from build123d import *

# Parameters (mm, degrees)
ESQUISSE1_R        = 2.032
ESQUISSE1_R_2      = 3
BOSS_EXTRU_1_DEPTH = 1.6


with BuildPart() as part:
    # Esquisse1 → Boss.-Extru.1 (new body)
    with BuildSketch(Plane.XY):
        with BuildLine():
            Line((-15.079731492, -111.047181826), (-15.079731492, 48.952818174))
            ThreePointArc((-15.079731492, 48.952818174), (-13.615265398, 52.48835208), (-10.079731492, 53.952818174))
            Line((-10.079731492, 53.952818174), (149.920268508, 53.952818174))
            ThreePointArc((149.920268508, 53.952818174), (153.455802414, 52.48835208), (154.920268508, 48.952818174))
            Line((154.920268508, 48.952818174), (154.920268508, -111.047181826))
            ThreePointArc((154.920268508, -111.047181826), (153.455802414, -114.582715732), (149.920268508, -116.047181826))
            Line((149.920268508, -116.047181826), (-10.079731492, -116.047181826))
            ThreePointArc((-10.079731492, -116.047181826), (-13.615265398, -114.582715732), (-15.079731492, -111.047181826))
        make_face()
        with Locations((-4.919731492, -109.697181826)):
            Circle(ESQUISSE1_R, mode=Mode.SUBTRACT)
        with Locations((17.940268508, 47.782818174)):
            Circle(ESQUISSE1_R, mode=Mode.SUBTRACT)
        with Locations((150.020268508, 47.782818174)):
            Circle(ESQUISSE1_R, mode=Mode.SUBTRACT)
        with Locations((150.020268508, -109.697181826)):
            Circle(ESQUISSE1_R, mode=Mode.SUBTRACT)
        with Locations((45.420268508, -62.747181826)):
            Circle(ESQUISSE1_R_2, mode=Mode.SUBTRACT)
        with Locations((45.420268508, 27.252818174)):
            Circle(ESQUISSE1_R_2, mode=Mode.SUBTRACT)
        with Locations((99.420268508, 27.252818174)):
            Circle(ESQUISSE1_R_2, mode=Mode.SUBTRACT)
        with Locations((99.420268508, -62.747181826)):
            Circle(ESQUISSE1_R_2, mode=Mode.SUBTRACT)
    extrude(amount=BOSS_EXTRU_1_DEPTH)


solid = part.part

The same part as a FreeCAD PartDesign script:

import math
import FreeCAD as App
import Part
import Sketcher
from FreeCAD import Vector
Q = App.Units.Quantity

doc = App.newDocument("Part")
body = doc.addObject("PartDesign::Body", "Body")

# Sketch on XY plane
sketch1 = body.newObject("Sketcher::SketchObject", "Sketch")
sketch1.AttachmentSupport = (doc.getObject("XY_Plane"), [""])
sketch1.MapMode = "FlatFace"
sketch1.addGeometry([
    Part.LineSegment(Vector(-15.1, 49, 0), Vector(-15.1, -111, 0)),  # 0
    Part.ArcOfCircle(Part.Circle(Vector(-10.1, -111, 0), Vector(0, 0, 1), 5), math.radians(180), math.radians(270)),  # 1
    Part.LineSegment(Vector(-10.1, -116, 0), Vector(149.9, -116, 0)),  # 2
    Part.ArcOfCircle(Part.Circle(Vector(149.9, -111, 0), Vector(0, 0, 1), 5), math.radians(-90), math.radians(0)),  # 3
    Part.LineSegment(Vector(154.9, -111, 0), Vector(154.9, 49, 0)),  # 4
    Part.ArcOfCircle(Part.Circle(Vector(149.9, 49, 0), Vector(0, 0, 1), 5), math.radians(0), math.radians(90)),  # 5
    Part.LineSegment(Vector(149.9, 54, 0), Vector(-10.1, 54, 0)),  # 6
    Part.ArcOfCircle(Part.Circle(Vector(-10.1, 49, 0), Vector(0, 0, 1), 5), math.radians(90), math.radians(180)),  # 7
    Part.Circle(Vector(150, -109.7, 0), Vector(0, 0, 1), 2),  # 8
    Part.Circle(Vector(99.4, -62.7, 0), Vector(0, 0, 1), 3),  # 9
    Part.Circle(Vector(-4.9, -109.7, 0), Vector(0, 0, 1), 2),  # 10
    Part.Circle(Vector(45.4, -62.7, 0), Vector(0, 0, 1), 3),  # 11
    Part.Circle(Vector(150, 47.8, 0), Vector(0, 0, 1), 2),  # 12
    Part.Circle(Vector(99.4, 27.3, 0), Vector(0, 0, 1), 3),  # 13
    Part.Circle(Vector(45.4, 27.3, 0), Vector(0, 0, 1), 3),  # 14
    Part.Circle(Vector(17.9, 47.8, 0), Vector(0, 0, 1), 2),  # 15
], False)
sketch1.addConstraint([
    Sketcher.Constraint("Tangent", 0, 2, 1, 1),
    Sketcher.Constraint("Tangent", 1, 2, 2, 1),
    Sketcher.Constraint("Tangent", 2, 2, 3, 1),
    Sketcher.Constraint("Tangent", 3, 2, 4, 1),
    Sketcher.Constraint("Tangent", 4, 2, 5, 1),
    Sketcher.Constraint("Tangent", 5, 2, 6, 1),
    Sketcher.Constraint("Tangent", 6, 2, 7, 1),
    Sketcher.Constraint("Tangent", 7, 2, 0, 1),
    Sketcher.Constraint("Vertical", 0),
    Sketcher.Constraint("Horizontal", 2),
    Sketcher.Constraint("Vertical", 4),
    Sketcher.Constraint("Horizontal", 6),
    Sketcher.Constraint("Equal", 1, 3),
    Sketcher.Constraint("Equal", 3, 5),
    Sketcher.Constraint("Equal", 5, 7),
    Sketcher.Constraint("Equal", 8, 10),
    Sketcher.Constraint("Equal", 9, 11),
    Sketcher.Constraint("Equal", 10, 12),
    Sketcher.Constraint("Equal", 11, 13),
    Sketcher.Constraint("Equal", 13, 14),
    Sketcher.Constraint("Equal", 12, 15),
    Sketcher.Constraint("Horizontal", 8, 3, 10, 3),
    Sketcher.Constraint("Horizontal", 9, 3, 11, 3),
    Sketcher.Constraint("Horizontal", 13, 3, 14, 3),
    Sketcher.Constraint("Horizontal", 12, 3, 15, 3),
    Sketcher.Constraint("Vertical", 8, 3, 12, 3),
    Sketcher.Constraint("Vertical", 9, 3, 13, 3),
    Sketcher.Constraint("Vertical", 11, 3, 14, 3),
    Sketcher.Constraint("Equal", 6, 0),
    Sketcher.Constraint("Diameter", 9, Q("6 mm")),
    Sketcher.Constraint("Radius", 1, Q("5 mm")),
    Sketcher.Constraint("DistanceX", 2, 1, 2, 2, Q("160 mm")),
    Sketcher.Constraint("Diameter", 8, Q("4.064 mm")),
    Sketcher.Constraint("DistanceX", 11, 3, 9, 3, Q("54 mm")),
    Sketcher.Constraint("DistanceY", 9, 3, 13, 3, Q("90 mm")),
    Sketcher.Constraint("DistanceX", 3, 3, 8, 3, Q("0.1 mm")),
    Sketcher.Constraint("DistanceX", 9, 3, 8, 3, Q("50.6 mm")),
    Sketcher.Constraint("DistanceY", 3, 3, 9, 3, Q("48.3 mm")),
    Sketcher.Constraint("DistanceY", 3, 3, 8, 3, Q("1.35 mm")),
    Sketcher.Constraint("DistanceX", 1, 3, 10, 3, Q("5.16 mm")),
    Sketcher.Constraint("DistanceY", 12, 3, 5, 3, Q("1.17 mm")),
    Sketcher.Constraint("DistanceX", 7, 3, 15, 3, Q("28.02 mm")),
    Sketcher.Constraint("DistanceX", 1, 3, -1, 1, Q("10.079731 mm")),
    Sketcher.Constraint("DistanceY", 1, 3, -1, 1, Q("111.047182 mm")),
])
pad1 = body.newObject("PartDesign::Pad", "Pad")
pad1.Profile = sketch1
pad1.Length = 1.6

doc.recompute()
